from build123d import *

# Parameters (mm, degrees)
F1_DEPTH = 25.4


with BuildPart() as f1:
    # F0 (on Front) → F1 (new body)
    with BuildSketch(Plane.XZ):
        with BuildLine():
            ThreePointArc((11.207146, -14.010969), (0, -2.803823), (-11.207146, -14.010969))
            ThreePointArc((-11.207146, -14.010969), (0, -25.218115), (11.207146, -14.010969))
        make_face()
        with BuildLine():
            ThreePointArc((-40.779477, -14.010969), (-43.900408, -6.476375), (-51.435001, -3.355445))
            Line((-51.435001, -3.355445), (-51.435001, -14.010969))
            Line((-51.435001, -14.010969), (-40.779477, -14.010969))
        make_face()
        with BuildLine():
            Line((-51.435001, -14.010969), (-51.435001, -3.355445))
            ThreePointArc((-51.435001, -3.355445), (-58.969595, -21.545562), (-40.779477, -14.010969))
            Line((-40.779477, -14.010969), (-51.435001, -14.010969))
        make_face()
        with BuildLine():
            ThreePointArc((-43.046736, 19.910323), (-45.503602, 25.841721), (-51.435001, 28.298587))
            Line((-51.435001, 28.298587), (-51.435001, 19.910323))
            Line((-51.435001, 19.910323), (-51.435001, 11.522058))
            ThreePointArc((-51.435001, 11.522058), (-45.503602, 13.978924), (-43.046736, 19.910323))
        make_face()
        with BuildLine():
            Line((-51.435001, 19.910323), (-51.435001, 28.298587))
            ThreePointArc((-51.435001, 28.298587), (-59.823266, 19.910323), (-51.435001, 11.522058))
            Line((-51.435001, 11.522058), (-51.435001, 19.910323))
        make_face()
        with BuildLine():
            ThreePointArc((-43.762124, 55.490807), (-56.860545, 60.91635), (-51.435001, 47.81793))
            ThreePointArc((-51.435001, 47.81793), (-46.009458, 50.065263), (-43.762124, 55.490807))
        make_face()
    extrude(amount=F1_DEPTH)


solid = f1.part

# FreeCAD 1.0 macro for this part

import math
import FreeCAD as App
import Part
import Sketcher

V = App.Vector
Q = App.Units.Quantity

doc = App.newDocument("Part")
body = doc.addObject("PartDesign::Body", "Body")
body.AllowCompound = True

sketch1 = body.newObject("Sketcher::SketchObject", "Sketch")
sketch1.AttachmentSupport = (doc.getObject("XZ_Plane"), [""])
sketch1.MapMode = "FlatFace"
sketch1.addGeometry(Part.Circle(V(0, -14, 0), V(0, 0, 1), 11), False)
sketch1.addGeometry(Part.ArcOfCircle(Part.Circle(V(-51, -14, 0), V(0, 0, 1), 11), math.radians(0), math.radians(90)), False)
sketch1.addGeometry(Part.ArcOfCircle(Part.Circle(V(-51, -14, 0), V(0, 0, 1), 11), math.radians(90), math.radians(360)), False)
sketch1.addGeometry(Part.ArcOfCircle(Part.Circle(V(-51, 20, 0), V(0, 0, 1), 8), math.radians(0), math.radians(90)), False)
sketch1.addGeometry(Part.ArcOfCircle(Part.Circle(V(-51, 20, 0), V(0, 0, 1), 8), math.radians(90), math.radians(270)), False)
sketch1.addGeometry(Part.ArcOfCircle(Part.Circle(V(-51, 20, 0), V(0, 0, 1), 8), math.radians(-90), math.radians(0)), False)
sketch1.addGeometry(Part.ArcOfCircle(Part.Circle(V(-51, 55, 0), V(0, 0, 1), 8), math.radians(0), math.radians(270)), False)
sketch1.addGeometry(Part.ArcOfCircle(Part.Circle(V(-51, 55, 0), V(0, 0, 1), 8), math.radians(-90), math.radians(0)), False)
sketch1.addConstraint(Sketcher.Constraint("Tangent", 1, 1, 2, 2))
sketch1.addConstraint(Sketcher.Constraint("Coincident", 2, 1, 1, 2))
sketch1.addConstraint(Sketcher.Constraint("Tangent", 3, 2, 4, 1))
sketch1.addConstraint(Sketcher.Constraint("Tangent", 4, 2, 5, 1))
sketch1.addConstraint(Sketcher.Constraint("Tangent", 5, 2, 3, 1))
sketch1.addConstraint(Sketcher.Constraint("Tangent", 6, 1, 7, 2))
sketch1.addConstraint(Sketcher.Constraint("Coincident", 7, 1, 6, 2))
sketch1.addConstraint(Sketcher.Constraint("PointOnObject", 0, 3, -2))
sketch1.addConstraint(Sketcher.Constraint("Horizontal", 0, 3, 1, 3))
sketch1.addConstraint(Sketcher.Constraint("Horizontal", 2, 3, 1, 1))
sketch1.addConstraint(Sketcher.Constraint("Horizontal", 4, 3, 5, 2))
sketch1.addConstraint(Sketcher.Constraint("Horizontal", 7, 3, 6, 1))
sketch1.addConstraint(Sketcher.Constraint("Vertical", 2, 3, 3, 3))
sketch1.addConstraint(Sketcher.Constraint("Vertical", 5, 3, 6, 3))
sketch1.addConstraint(Sketcher.Constraint("Vertical", 7, 3, 2, 1))
sketch1.addConstraint(Sketcher.Constraint("Vertical", 2, 1, 3, 2))
sketch1.addConstraint(Sketcher.Constraint("Vertical", 3, 2, 4, 2))
sketch1.addConstraint(Sketcher.Constraint("Vertical", 4, 2, 7, 1))
sketch1.addConstraint(Sketcher.Constraint("Diameter", 0, Q("22.414292 mm")))
sketch1.addConstraint(Sketcher.Constraint("DistanceX", 1, 3, -1, 1, Q("2.025 in")))
sketch1.addConstraint(Sketcher.Constraint("Radius", 1, Q("10.655523 mm")))
sketch1.addConstraint(Sketcher.Constraint("Radius", 3, Q("8.388265 mm")))
sketch1.addConstraint(Sketcher.Constraint("Radius", 6, Q("7.672877 mm")))
sketch1.addConstraint(Sketcher.Constraint("DistanceY", 0, 3, -1, 1, Q("14.010969 mm")))
sketch1.addConstraint(Sketcher.Constraint("DistanceY", -1, 1, 3, 3, Q("19.910322 mm")))
sketch1.addConstraint(Sketcher.Constraint("DistanceY", -1, 1, 7, 1, Q("47.81793 mm")))
pad1 = body.newObject("PartDesign::Pad", "Pad")
pad1.Profile = sketch1
pad1.Length = Q("1 in")

doc.recompute()
